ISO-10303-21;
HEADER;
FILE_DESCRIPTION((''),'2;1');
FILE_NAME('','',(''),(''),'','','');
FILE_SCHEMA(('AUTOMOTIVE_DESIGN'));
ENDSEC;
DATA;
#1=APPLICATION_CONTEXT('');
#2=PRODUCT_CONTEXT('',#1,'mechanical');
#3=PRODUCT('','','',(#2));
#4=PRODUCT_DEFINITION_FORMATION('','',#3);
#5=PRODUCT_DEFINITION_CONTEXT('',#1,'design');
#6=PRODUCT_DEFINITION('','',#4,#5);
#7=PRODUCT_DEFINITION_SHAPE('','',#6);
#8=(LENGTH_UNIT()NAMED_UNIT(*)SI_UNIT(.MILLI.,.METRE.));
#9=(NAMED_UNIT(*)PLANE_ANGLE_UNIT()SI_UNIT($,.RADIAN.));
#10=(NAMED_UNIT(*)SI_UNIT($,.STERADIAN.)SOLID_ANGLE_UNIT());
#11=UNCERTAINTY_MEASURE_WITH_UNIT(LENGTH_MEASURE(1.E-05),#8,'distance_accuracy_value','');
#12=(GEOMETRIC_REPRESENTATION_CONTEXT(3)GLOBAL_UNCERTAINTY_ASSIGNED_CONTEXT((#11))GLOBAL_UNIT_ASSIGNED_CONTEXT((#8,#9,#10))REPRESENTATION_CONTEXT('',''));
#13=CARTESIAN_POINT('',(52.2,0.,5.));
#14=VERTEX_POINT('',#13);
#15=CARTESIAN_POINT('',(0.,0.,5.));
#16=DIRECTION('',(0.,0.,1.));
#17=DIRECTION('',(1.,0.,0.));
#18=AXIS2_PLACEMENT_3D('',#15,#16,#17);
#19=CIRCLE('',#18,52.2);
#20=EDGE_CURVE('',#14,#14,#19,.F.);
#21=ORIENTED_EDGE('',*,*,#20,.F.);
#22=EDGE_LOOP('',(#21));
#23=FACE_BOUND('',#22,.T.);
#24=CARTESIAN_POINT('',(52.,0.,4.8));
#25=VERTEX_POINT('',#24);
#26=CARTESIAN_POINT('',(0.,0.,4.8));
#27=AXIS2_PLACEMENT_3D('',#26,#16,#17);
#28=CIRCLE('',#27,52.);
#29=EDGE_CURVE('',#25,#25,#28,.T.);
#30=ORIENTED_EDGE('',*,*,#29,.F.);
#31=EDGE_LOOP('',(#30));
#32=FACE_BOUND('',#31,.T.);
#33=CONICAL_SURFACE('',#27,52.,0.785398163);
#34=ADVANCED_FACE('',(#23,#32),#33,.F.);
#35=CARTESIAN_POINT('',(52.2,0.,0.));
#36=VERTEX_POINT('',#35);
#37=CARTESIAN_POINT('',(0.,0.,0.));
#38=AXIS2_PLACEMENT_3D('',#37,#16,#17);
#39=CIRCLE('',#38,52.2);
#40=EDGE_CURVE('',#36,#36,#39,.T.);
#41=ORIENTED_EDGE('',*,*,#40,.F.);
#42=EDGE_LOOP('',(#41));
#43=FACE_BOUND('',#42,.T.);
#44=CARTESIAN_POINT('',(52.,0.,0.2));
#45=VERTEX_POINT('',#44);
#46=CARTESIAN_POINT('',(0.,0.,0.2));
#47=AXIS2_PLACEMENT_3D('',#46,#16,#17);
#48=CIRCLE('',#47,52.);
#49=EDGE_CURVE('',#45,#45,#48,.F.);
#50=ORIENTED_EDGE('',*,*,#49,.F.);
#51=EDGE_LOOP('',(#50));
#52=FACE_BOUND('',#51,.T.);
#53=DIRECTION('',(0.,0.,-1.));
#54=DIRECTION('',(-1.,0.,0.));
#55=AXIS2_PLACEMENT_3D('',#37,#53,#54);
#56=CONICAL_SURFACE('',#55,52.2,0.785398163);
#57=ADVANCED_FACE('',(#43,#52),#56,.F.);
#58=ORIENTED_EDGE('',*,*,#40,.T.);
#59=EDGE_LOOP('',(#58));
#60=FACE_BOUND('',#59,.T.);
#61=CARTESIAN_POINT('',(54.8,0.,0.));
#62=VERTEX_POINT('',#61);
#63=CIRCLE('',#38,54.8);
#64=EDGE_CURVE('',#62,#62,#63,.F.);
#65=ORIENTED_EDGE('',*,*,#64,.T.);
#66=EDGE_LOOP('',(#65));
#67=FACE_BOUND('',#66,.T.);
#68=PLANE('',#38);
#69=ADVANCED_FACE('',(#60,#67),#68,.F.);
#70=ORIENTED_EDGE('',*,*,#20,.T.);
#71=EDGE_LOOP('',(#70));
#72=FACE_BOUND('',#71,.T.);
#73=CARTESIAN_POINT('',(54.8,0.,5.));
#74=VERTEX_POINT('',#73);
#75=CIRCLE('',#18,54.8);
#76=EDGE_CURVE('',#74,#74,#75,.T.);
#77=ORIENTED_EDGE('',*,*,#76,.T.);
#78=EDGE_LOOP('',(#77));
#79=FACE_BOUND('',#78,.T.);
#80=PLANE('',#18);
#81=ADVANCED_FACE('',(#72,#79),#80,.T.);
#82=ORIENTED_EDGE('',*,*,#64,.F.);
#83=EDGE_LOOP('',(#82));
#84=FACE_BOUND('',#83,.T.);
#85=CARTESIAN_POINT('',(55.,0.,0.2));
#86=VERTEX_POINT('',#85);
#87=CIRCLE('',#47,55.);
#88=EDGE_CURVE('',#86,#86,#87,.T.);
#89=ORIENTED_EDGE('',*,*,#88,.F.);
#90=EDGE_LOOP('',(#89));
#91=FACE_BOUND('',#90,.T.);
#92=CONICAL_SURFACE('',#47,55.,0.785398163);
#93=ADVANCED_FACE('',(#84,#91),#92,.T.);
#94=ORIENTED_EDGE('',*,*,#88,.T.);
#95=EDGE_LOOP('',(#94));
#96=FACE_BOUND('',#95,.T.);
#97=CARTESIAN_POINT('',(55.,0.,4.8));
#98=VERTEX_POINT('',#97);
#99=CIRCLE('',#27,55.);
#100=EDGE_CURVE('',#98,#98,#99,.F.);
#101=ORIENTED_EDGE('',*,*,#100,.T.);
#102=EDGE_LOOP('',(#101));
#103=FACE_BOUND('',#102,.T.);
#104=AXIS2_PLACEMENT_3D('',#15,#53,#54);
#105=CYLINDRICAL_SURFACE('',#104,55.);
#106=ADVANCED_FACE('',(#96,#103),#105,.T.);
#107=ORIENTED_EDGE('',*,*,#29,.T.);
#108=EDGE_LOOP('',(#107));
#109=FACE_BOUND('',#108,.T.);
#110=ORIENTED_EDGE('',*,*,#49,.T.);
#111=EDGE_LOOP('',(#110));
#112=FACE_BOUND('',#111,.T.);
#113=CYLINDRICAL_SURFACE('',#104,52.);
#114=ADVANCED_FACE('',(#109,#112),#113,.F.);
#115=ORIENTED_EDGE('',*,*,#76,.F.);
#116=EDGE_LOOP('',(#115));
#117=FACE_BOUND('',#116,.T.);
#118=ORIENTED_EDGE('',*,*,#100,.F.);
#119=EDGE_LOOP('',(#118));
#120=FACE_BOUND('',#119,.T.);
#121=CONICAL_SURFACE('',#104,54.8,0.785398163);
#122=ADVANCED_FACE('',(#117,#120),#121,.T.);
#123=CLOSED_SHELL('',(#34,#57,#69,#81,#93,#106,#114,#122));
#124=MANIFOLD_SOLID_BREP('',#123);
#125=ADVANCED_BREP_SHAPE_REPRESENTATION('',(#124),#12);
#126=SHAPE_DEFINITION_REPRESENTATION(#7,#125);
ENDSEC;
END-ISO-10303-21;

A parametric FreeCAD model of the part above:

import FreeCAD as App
import Part
import Sketcher


def edges_at(feature, points):
    """Names of the edges that pass closest to the given points."""
    edges = feature.Shape.Edges
    near = lambda p: min(range(len(edges)), key=lambda i: edges[i].distToShape(Part.Vertex(*p))[0])
    return sorted({f"Edge{near(p) + 1}" for p in points})

doc = App.newDocument("Part")
body = doc.addObject("PartDesign::Body", "Body")

# Sketch on XY plane
sketch1 = body.newObject("Sketcher::SketchObject", "Sketch")
sketch1.AttachmentSupport = (doc.getObject("XY_Plane"), [""])
sketch1.MapMode = "FlatFace"
sketch1.addGeometry([
    Part.Circle(App.Vector(0, 0, 0), App.Vector(0, 0, 1), 55),
    Part.Circle(App.Vector(0, 0, 0), App.Vector(0, 0, 1), 52),
], False)
sketch1.addConstraint([
    Sketcher.Constraint("Coincident", 0, 3, -1, 1),
    Sketcher.Constraint("Coincident", 1, 3, -1, 1),
    Sketcher.Constraint("Diameter", 0, 110.0),
    Sketcher.Constraint("Diameter", 1, 104.0),
])
pad1 = body.newObject("PartDesign::Pad", "Pad")
pad1.Profile = sketch1
pad1.Length = 5
doc.recompute()

chamfer = body.newObject("PartDesign::Chamfer", "Chamfer")
chamfer.Base = (pad1, edges_at(pad1, [
    (-55, 0, 0),
    (-55, 0, 5),
    (-52, 0, 0),
    (-52, 0, 5),
]))
chamfer.Size = 0.2

doc.recompute()
